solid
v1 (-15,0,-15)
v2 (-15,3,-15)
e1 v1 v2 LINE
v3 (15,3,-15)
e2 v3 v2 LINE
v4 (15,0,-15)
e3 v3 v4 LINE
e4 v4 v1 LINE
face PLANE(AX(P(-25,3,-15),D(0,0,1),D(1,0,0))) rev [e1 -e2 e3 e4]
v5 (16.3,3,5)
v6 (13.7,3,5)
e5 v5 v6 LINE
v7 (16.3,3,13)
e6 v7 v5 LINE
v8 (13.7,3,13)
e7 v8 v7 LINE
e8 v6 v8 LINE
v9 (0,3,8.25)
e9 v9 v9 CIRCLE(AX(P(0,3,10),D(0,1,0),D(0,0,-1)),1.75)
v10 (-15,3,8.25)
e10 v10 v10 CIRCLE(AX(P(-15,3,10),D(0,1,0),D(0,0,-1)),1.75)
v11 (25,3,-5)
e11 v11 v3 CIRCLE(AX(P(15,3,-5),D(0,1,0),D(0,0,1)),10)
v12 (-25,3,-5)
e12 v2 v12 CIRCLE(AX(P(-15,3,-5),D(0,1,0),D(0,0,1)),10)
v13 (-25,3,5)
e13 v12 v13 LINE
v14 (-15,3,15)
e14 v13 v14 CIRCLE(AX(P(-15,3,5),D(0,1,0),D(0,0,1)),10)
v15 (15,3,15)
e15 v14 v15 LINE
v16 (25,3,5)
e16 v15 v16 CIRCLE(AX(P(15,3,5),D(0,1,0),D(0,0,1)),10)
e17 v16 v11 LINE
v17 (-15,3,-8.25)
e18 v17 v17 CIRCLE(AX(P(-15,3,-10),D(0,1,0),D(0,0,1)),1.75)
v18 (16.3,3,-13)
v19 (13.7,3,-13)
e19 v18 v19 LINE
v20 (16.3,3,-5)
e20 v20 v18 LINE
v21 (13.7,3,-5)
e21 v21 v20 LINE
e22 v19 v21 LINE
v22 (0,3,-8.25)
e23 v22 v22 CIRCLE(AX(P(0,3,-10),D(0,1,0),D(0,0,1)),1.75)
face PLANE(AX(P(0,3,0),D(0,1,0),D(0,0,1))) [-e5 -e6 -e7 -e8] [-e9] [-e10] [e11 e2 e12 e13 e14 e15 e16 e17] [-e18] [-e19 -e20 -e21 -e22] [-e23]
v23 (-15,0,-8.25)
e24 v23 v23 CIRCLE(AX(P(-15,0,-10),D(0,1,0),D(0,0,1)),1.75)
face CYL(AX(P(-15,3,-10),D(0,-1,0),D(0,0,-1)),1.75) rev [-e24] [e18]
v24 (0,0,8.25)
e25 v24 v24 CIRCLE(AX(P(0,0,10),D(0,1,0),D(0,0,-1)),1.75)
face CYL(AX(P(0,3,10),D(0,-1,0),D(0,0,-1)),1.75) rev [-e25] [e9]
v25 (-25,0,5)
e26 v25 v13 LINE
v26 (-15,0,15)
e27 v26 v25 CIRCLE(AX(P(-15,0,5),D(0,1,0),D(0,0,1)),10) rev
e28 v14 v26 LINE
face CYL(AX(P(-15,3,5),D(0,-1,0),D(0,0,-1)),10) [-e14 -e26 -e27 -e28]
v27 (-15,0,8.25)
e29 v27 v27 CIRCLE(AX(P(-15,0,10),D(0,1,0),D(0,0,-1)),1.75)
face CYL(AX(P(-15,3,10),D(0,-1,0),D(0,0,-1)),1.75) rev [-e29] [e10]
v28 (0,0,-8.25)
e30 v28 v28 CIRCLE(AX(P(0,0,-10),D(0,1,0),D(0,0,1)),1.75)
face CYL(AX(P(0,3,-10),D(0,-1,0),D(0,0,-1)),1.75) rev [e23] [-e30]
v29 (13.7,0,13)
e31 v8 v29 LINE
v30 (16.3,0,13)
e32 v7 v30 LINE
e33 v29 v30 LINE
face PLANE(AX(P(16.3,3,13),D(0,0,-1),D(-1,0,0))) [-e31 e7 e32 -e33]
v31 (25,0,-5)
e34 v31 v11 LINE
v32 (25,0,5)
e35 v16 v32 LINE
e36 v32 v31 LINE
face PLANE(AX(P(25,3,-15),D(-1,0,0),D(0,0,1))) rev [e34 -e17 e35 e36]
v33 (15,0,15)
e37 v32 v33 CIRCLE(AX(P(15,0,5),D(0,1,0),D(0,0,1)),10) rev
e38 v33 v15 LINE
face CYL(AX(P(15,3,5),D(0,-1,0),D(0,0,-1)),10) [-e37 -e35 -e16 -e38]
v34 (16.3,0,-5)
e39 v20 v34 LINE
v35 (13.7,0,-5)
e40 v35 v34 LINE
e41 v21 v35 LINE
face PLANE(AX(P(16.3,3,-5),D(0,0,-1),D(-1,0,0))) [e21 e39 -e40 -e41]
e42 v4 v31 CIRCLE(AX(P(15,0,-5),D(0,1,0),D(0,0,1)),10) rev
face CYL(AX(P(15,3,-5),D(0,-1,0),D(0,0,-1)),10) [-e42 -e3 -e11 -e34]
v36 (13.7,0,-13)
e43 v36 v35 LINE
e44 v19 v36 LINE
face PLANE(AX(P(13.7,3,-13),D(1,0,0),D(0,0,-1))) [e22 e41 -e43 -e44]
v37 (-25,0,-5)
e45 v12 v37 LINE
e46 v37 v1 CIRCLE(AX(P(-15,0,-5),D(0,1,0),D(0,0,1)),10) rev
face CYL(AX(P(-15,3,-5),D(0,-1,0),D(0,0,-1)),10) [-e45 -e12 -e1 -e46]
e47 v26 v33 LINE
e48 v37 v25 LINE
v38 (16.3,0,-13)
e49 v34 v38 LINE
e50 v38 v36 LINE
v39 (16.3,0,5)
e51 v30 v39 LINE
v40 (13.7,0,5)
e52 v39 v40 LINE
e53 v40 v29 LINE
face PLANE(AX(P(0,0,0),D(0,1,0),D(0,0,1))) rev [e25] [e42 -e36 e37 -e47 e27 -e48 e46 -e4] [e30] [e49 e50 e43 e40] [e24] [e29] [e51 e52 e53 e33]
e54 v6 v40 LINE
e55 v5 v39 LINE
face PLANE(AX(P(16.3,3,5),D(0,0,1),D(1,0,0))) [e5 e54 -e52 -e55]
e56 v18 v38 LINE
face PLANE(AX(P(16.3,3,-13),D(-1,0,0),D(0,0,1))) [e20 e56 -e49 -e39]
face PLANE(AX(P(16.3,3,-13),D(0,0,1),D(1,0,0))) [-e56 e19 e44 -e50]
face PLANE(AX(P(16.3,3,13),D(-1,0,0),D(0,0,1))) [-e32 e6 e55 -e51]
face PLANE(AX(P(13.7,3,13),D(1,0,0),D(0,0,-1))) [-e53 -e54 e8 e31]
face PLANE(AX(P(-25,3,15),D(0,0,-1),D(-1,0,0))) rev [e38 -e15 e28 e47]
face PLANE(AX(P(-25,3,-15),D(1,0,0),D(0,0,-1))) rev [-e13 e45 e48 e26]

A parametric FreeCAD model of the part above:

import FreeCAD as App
import Part
import Sketcher

V = App.Vector


def edges_at(feature, points):
    """Names of the edges that pass closest to the given points."""
    edges = feature.Shape.Edges
    near = lambda p: min(range(len(edges)), key=lambda i: edges[i].distToShape(Part.Vertex(*p))[0])
    return sorted({f"Edge{near(p) + 1}" for p in points})


def add_polygon(sketch, points):
    """Adds a closed chain of lines whose ends are joined by coincident constraints."""
    first, n = sketch.GeometryCount, len(points)
    for a, b in zip(points, points[1:] + points[:1]):
        sketch.addGeometry(Part.LineSegment(App.Vector(*a, 0), App.Vector(*b, 0)), False)
    for i in range(n):
        sketch.addConstraint(Sketcher.Constraint("Coincident", first + i, 2, first + (i + 1) % n, 1))

doc = App.newDocument("Part")
body = doc.addObject("PartDesign::Body", "Body")

# Sketch on XZ plane
sketch1 = doc.addObject("Sketcher::SketchObject", "Sketch")
body.addObject(sketch1)
sketch1.AttachmentSupport = (doc.XZ_Plane, [""])
sketch1.MapMode = "FlatFace"
add_polygon(sketch1, [(-25, -15), (-25, 15), (25, 15), (25, -15)])  # lines 0-3
sketch1.addGeometry(Part.Circle(V(-15, 10, 0), V(0, 0, 1), 1.8), False)  # 4
sketch1.addGeometry(Part.Circle(V(0, 10, 0), V(0, 0, 1), 1.8), False)  # 5
add_polygon(sketch1, [(16.3, 13), (13.7, 13), (13.7, 5), (16.3, 5)])  # lines 6-9
sketch1.addGeometry(Part.Circle(V(-15, -10, 0), V(0, 0, 1), 1.8), False)  # 10
sketch1.addGeometry(Part.Circle(V(0, -10, 0), V(0, 0, 1), 1.8), False)  # 11
add_polygon(sketch1, [(16.3, -5), (13.7, -5), (13.7, -13), (16.3, -13)])  # lines 12-15
sketch1.addConstraint(Sketcher.Constraint("Vertical", 0))
sketch1.addConstraint(Sketcher.Constraint("Horizontal", 1))
sketch1.addConstraint(Sketcher.Constraint("Vertical", 2))
sketch1.addConstraint(Sketcher.Constraint("Horizontal", 3))
sketch1.addConstraint(Sketcher.Constraint("Horizontal", 6))
sketch1.addConstraint(Sketcher.Constraint("Vertical", 7))
sketch1.addConstraint(Sketcher.Constraint("Horizontal", 8))
sketch1.addConstraint(Sketcher.Constraint("Vertical", 9))
sketch1.addConstraint(Sketcher.Constraint("Horizontal", 12))
sketch1.addConstraint(Sketcher.Constraint("Vertical", 13))
sketch1.addConstraint(Sketcher.Constraint("Horizontal", 14))
sketch1.addConstraint(Sketcher.Constraint("Vertical", 15))
sketch1.addConstraint(Sketcher.Constraint("Equal", 4, 5))
sketch1.addConstraint(Sketcher.Constraint("Equal", 5, 10))
sketch1.addConstraint(Sketcher.Constraint("Equal", 10, 11))
sketch1.addConstraint(Sketcher.Constraint("Symmetric", 5, 3, 11, 3, -1, 1))
sketch1.addConstraint(Sketcher.Constraint("Symmetric", 0, 2, 2, 2, -1, 1))
sketch1.addConstraint(Sketcher.Constraint("Symmetric", 4, 3, 10, 3, -1))
sketch1.addConstraint(Sketcher.Constraint("Symmetric", 7, 2, 12, 2, -1))
sketch1.addConstraint(Sketcher.Constraint("Symmetric", 9, 2, 14, 2, -1))
sketch1.addConstraint(Sketcher.Constraint("PointOnObject", 5, 3, -2))
sketch1.addConstraint(Sketcher.Constraint("Horizontal", 4, 3, 5, 3))
sketch1.addConstraint(Sketcher.Constraint("Diameter", 4, 3.5))
sketch1.addConstraint(Sketcher.Constraint("DistanceX", 1, 1, 1, 2, 50.0))
sketch1.addConstraint(Sketcher.Constraint("DistanceY", 0, 1, 0, 2, 30.0))
sketch1.addConstraint(Sketcher.Constraint("DistanceY", 7, 2, 7, 1, 8.0))
sketch1.addConstraint(Sketcher.Constraint("DistanceX", 6, 2, 6, 1, 2.6))
sketch1.addConstraint(Sketcher.Constraint("DistanceX", 4, 3, -1, 1, 15.0))
sketch1.addConstraint(Sketcher.Constraint("DistanceY", -1, 1, 4, 3, 10.0))
sketch1.addConstraint(Sketcher.Constraint("DistanceY", -1, 1, 6, 2, 13.0))
sketch1.addConstraint(Sketcher.Constraint("DistanceX", -1, 1, 6, 2, 13.7))
pad1 = doc.addObject("PartDesign::Pad", "Pad")
body.addObject(pad1)
pad1.Profile = sketch1
pad1.Length = 3
pad1.Reversed = True
doc.recompute()

fillet = doc.addObject("PartDesign::Fillet", "Fillet")
body.addObject(fillet)
fillet.Base = (pad1, edges_at(pad1, [
    (-25, 1.5, -15),
    (25, 1.5, -15),
    (25, 1.5, 15),
    (-25, 1.5, 15),
]))
fillet.Radius = 10

doc.recompute()
